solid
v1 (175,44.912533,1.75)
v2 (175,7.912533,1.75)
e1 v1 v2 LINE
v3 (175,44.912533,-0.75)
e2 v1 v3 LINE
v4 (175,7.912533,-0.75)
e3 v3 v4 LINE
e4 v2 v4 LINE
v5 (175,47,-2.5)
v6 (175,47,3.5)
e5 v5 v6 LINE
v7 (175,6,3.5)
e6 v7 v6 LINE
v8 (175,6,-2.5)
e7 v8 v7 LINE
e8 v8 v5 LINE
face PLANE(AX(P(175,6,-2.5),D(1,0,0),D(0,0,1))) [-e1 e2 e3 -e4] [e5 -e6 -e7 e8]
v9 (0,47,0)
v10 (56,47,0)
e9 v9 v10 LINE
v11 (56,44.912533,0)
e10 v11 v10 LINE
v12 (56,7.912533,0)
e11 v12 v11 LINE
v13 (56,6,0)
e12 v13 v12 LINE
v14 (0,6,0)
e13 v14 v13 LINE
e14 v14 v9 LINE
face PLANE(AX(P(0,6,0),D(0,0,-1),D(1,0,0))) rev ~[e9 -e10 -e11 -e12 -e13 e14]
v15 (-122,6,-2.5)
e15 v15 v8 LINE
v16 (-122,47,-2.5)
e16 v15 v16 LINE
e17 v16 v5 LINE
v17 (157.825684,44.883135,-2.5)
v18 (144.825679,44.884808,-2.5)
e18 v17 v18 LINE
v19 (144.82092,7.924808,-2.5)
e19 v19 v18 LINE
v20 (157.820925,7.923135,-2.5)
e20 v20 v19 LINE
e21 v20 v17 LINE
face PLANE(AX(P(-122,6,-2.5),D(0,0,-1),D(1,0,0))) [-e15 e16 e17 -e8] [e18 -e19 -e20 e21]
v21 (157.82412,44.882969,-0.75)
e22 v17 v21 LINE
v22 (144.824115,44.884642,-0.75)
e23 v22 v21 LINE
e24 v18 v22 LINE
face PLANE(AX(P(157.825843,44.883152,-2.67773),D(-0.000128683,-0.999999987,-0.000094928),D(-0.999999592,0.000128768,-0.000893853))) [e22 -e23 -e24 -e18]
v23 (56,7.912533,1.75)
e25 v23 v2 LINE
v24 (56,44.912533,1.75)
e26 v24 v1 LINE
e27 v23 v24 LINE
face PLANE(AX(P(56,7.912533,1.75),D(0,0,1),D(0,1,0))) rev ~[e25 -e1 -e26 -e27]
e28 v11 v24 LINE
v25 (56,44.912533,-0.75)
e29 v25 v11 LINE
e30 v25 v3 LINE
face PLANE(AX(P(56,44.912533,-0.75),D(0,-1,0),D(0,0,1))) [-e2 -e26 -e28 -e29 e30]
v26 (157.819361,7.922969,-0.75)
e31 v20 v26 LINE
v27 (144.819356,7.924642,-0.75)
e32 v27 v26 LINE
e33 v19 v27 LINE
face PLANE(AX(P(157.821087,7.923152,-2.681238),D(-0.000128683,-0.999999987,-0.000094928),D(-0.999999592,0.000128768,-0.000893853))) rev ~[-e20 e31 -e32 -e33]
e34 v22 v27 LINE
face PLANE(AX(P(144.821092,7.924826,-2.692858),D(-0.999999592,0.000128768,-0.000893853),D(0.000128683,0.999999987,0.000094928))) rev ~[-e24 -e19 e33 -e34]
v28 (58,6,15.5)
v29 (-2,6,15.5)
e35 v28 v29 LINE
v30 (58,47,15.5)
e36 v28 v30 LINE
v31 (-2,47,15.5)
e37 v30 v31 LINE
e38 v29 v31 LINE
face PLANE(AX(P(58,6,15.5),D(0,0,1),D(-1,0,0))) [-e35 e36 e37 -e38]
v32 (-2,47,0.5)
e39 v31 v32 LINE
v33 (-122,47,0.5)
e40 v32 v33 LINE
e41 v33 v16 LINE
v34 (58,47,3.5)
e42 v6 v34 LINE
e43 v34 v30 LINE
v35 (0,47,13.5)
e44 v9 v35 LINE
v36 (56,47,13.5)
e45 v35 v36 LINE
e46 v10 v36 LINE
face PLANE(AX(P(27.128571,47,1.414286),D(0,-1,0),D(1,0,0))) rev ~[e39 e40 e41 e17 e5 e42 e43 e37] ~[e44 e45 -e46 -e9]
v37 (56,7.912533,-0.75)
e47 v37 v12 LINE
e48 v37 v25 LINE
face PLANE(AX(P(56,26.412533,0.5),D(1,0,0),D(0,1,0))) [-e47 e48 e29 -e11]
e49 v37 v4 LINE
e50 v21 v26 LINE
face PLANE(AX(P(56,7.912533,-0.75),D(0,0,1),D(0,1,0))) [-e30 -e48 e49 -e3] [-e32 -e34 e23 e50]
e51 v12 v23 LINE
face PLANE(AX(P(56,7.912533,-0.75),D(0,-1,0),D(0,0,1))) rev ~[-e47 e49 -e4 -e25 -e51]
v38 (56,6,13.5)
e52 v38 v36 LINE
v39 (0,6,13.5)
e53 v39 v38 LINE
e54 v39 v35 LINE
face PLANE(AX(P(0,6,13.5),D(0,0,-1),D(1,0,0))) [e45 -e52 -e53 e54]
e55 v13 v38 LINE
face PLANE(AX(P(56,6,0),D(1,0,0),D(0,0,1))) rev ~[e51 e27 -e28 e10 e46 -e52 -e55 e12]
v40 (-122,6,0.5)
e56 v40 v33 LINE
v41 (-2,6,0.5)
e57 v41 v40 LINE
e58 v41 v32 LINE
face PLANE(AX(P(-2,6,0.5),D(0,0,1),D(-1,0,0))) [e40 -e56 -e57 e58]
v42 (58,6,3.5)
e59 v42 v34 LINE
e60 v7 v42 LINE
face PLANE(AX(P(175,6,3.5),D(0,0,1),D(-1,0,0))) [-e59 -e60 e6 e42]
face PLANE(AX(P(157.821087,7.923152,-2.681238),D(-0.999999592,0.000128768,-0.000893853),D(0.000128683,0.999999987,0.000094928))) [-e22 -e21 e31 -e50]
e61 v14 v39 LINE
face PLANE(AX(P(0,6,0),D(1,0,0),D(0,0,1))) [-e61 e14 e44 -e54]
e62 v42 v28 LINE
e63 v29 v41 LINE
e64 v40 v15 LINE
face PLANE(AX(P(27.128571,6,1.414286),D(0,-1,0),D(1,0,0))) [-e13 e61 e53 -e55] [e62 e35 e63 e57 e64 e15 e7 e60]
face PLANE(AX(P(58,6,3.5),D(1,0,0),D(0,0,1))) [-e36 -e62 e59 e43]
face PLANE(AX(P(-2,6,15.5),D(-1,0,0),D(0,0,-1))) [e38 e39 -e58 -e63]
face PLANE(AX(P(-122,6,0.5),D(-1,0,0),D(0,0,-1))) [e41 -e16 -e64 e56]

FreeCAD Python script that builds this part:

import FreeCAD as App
import Part
import Sketcher
from FreeCAD import Vector
Q = App.Units.Quantity

doc = App.newDocument("Part")
body = doc.addObject("PartDesign::Body", "Body")

# Sketch on XY plane
sketch1 = body.newObject("Sketcher::SketchObject", "Sketch")
sketch1.AttachmentSupport = (doc.getObject("XY_Plane"), [""])
sketch1.MapMode = "FlatFace"
sketch1.addGeometry([
    Part.LineSegment(Vector(-19, -84, 0), Vector(-19, -98, 0)),
    Part.LineSegment(Vector(-19, -98, 0), Vector(18, -98, 0)),
    Part.LineSegment(Vector(18, -98, 0), Vector(18, -84, 0)),
    Part.LineSegment(Vector(18, -84, 0), Vector(-19, -84, 0)),
], False)
sketch1.addConstraint([
    Sketcher.Constraint("Coincident", 0, 2, 1, 1),
    Sketcher.Constraint("Coincident", 1, 2, 2, 1),
    Sketcher.Constraint("Coincident", 2, 2, 3, 1),
    Sketcher.Constraint("Coincident", 3, 2, 0, 1),
    Sketcher.Constraint("Vertical", 0),
    Sketcher.Constraint("Horizontal", 1),
    Sketcher.Constraint("Vertical", 2),
    Sketcher.Constraint("Horizontal", 3),
    Sketcher.Constraint("DistanceY", 0, 2, 0, 1, Q("13 mm")),
    Sketcher.Constraint("DistanceX", 1, 1, 1, 2, Q("36.96 mm")),
    Sketcher.Constraint("DistanceY", 0, 2, -1, 1, Q("97.5 mm")),
    Sketcher.Constraint("DistanceX", 0, 2, -1, 1, Q("18.55 mm")),
])
pad1 = body.newObject("PartDesign::Pad", "Pad")
pad1.Profile = sketch1
pad1.Length = 2
body2 = doc.addObject("PartDesign::Body", "Body001")
doc.recompute()

body.Placement = App.Placement(Vector(0, 0, 0), App.Rotation(Vector(1, 0, 0), 359.948786))
boolean = body2.newObject("PartDesign::Boolean", "Boolean")
boolean.Type = "Fuse"
boolean.addObjects([body])
body3 = doc.addObject("PartDesign::Body", "Body002")
doc.recompute()

body2.Placement = App.Placement(Vector(0, 0, 0), App.Rotation(Vector(0, 1, 0), 359.994561))
boolean2 = body3.newObject("PartDesign::Boolean", "Boolean001")
boolean2.Type = "Fuse"
boolean2.addObjects([body2])
body4 = doc.addObject("PartDesign::Body", "Body003")
doc.recompute()

body3.Placement = App.Placement(Vector(60.323514, 26.485707, 1.233372), App.Rotation(Vector(0, 0, 1), 89.992627))
boolean3 = body4.newObject("PartDesign::Boolean", "Boolean002")
boolean3.Type = "Fuse"
boolean3.addObjects([body3])
body5 = doc.addObject("PartDesign::Body", "Body004")
doc.recompute()

body4.Placement = App.Placement(Vector(0, 0, -4), App.Rotation(Vector(0, 0, 1), 0))
boolean4 = body5.newObject("PartDesign::Boolean", "Boolean003")
boolean4.Type = "Fuse"
boolean4.addObjects([body4])
body6 = doc.addObject("PartDesign::Body", "Body005")

# Sketch on YZ plane
sketch2 = body6.newObject("Sketcher::SketchObject", "Sketch001")
sketch2.AttachmentSupport = (doc.getObject("YZ_Plane005"), [""])
sketch2.MapMode = "FlatFace"
sketch2.AttachmentOffset = App.Placement(Vector(0, 0, 56), App.Rotation())
sketch2.addGeometry([
    Part.LineSegment(Vector(7.9, 1.8, 0), Vector(7.9, -0.8, 0)),
    Part.LineSegment(Vector(7.9, -0.8, 0), Vector(44.9, -0.8, 0)),
    Part.LineSegment(Vector(44.9, -0.8, 0), Vector(44.9, 1.8, 0)),
    Part.LineSegment(Vector(44.9, 1.8, 0), Vector(7.9, 1.8, 0)),
], False)
sketch2.addConstraint([
    Sketcher.Constraint("Coincident", 0, 2, 1, 1),
    Sketcher.Constraint("Coincident", 1, 2, 2, 1),
    Sketcher.Constraint("Coincident", 2, 2, 3, 1),
    Sketcher.Constraint("Coincident", 3, 2, 0, 1),
    Sketcher.Constraint("Vertical", 0),
    Sketcher.Constraint("Horizontal", 1),
    Sketcher.Constraint("Vertical", 2),
    Sketcher.Constraint("Horizontal", 3),
    Sketcher.Constraint("DistanceX", 1, 1, 1, 2, Q("37 mm")),
    Sketcher.Constraint("DistanceY", 0, 2, 0, 1, Q("2.5 mm")),
    Sketcher.Constraint("DistanceY", 0, 2, -1, 1, Q("0.75 mm")),
    Sketcher.Constraint("DistanceX", -1, 1, 0, 2, Q("7.912533 mm")),
])
pad2 = body6.newObject("PartDesign::Pad", "Pad001")
pad2.Profile = sketch2
pad2.Length = 120
body7 = doc.addObject("PartDesign::Body", "Body006")

# Sketch on XZ plane
sketch3 = body7.newObject("Sketcher::SketchObject", "Sketch002")
sketch3.AttachmentSupport = (doc.getObject("XZ_Plane006"), [""])
sketch3.MapMode = "FlatFace"
sketch3.AttachmentOffset = App.Placement(Vector(0, 0, -6), App.Rotation())
sketch3.addGeometry([
    Part.LineSegment(Vector(175, 3.5, 0), Vector(58, 3.5, 0)),  # 0
    Part.LineSegment(Vector(58, 3.5, 0), Vector(58, 15.5, 0)),  # 1
    Part.LineSegment(Vector(58, 15.5, 0), Vector(-2, 15.5, 0)),  # 2
    Part.LineSegment(Vector(-2, 15.5, 0), Vector(-2, 0.5, 0)),  # 3
    Part.LineSegment(Vector(-2, 0.5, 0), Vector(-122, 0.5, 0)),  # 4
    Part.LineSegment(Vector(-122, 0.5, 0), Vector(-122, -2.5, 0)),  # 5
    Part.LineSegment(Vector(-122, -2.5, 0), Vector(175, -2.5, 0)),  # 6
    Part.LineSegment(Vector(175, -2.5, 0), Vector(175, 3.5, 0)),  # 7
    Part.LineSegment(Vector(56, 0, 0), Vector(0, 0, 0)),  # 8
    Part.LineSegment(Vector(0, 0, 0), Vector(0, 13.5, 0)),  # 9
    Part.LineSegment(Vector(0, 13.5, 0), Vector(56, 13.5, 0)),  # 10
    Part.LineSegment(Vector(56, 13.5, 0), Vector(56, 0, 0)),  # 11
], False)
sketch3.addConstraint([
    Sketcher.Constraint("Coincident", 0, 2, 1, 1),
    Sketcher.Constraint("Coincident", 1, 2, 2, 1),
    Sketcher.Constraint("Coincident", 2, 2, 3, 1),
    Sketcher.Constraint("Coincident", 3, 2, 4, 1),
    Sketcher.Constraint("Coincident", 4, 2, 5, 1),
    Sketcher.Constraint("Coincident", 5, 2, 6, 1),
    Sketcher.Constraint("Coincident", 6, 2, 7, 1),
    Sketcher.Constraint("Coincident", 7, 2, 0, 1),
    Sketcher.Constraint("Coincident", 8, 2, 9, 1),
    Sketcher.Constraint("Coincident", 9, 2, 10, 1),
    Sketcher.Constraint("Coincident", 10, 2, 11, 1),
    Sketcher.Constraint("Coincident", 11, 2, 8, 1),
    Sketcher.Constraint("Horizontal", 0),
    Sketcher.Constraint("Vertical", 1),
    Sketcher.Constraint("Horizontal", 2),
    Sketcher.Constraint("Vertical", 3),
    Sketcher.Constraint("Horizontal", 4),
    Sketcher.Constraint("Vertical", 5),
    Sketcher.Constraint("Horizontal", 6),
    Sketcher.Constraint("Vertical", 7),
    Sketcher.Constraint("Horizontal", 8),
    Sketcher.Constraint("Vertical", 9),
    Sketcher.Constraint("Horizontal", 10),
    Sketcher.Constraint("Vertical", 11),
    Sketcher.Constraint("Coincident", 8, 2, -1, 1),
    Sketcher.Constraint("DistanceX", 0, 2, 0, 1, Q("117 mm")),
    Sketcher.Constraint("DistanceX", 2, 2, 2, 1, Q("60 mm")),
    Sketcher.Constraint("DistanceX", 4, 2, 4, 1, Q("120 mm")),
    Sketcher.Constraint("DistanceX", 8, 2, 8, 1, Q("56 mm")),
    Sketcher.Constraint("DistanceY", 1, 1, 1, 2, Q("12 mm")),
    Sketcher.Constraint("DistanceY", 3, 2, 3, 1, Q("15 mm")),
    Sketcher.Constraint("DistanceY", 5, 2, 5, 1, Q("3 mm")),
    Sketcher.Constraint("DistanceY", 9, 1, 9, 2, Q("13.5 mm")),
    Sketcher.Constraint("DistanceX", -1, 1, 0, 2, Q("58 mm")),
    Sketcher.Constraint("DistanceY", 9, 2, 2, 2, Q("2 mm")),
])
pad3 = body7.newObject("PartDesign::Pad", "Pad002")
pad3.Profile = sketch3
pad3.Length = 41
pad3.Reversed = True
doc.recompute()

boolean5 = body7.newObject("PartDesign::Boolean", "Boolean004")
boolean5.Type = "Cut"
boolean5.addObjects([body6])
doc.recompute()

boolean6 = body7.newObject("PartDesign::Boolean", "Boolean005")
boolean6.Type = "Cut"
boolean6.addObjects([body5])

doc.recompute()
